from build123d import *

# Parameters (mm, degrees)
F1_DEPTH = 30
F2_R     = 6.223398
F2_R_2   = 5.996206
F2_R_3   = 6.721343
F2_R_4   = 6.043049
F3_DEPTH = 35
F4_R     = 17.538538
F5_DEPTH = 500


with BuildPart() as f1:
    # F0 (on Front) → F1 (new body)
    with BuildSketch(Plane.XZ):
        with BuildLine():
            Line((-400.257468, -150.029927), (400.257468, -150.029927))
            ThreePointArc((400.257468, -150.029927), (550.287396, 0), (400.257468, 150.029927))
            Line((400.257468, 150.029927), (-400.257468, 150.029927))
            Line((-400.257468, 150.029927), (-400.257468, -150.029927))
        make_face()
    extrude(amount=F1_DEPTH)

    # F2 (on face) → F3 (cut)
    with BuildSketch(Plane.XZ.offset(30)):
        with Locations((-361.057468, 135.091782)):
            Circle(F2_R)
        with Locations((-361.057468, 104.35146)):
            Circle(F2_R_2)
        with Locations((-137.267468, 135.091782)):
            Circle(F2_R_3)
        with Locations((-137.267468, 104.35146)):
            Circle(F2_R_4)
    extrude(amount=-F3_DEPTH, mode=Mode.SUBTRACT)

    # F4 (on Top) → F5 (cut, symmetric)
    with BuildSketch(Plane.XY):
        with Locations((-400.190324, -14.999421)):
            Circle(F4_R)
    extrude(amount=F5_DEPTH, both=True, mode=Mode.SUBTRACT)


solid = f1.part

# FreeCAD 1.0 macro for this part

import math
import FreeCAD as App
import Part
import Sketcher
from FreeCAD import Vector

doc = App.newDocument("Part")
body = doc.addObject("PartDesign::Body", "Body")

# Sketch on XZ plane
sketch1 = body.newObject("Sketcher::SketchObject", "Sketch")
sketch1.AttachmentSupport = (doc.getObject("XZ_Plane"), [""])
sketch1.MapMode = "FlatFace"
sketch1.addGeometry([
    Part.LineSegment(Vector(-400, -150, 0), Vector(400, -150, 0)),
    Part.ArcOfCircle(Part.Circle(Vector(400, 0, 0), Vector(0, 0, 1), 150), math.radians(-90), math.radians(90)),
    Part.LineSegment(Vector(400, 150, 0), Vector(-400, 150, 0)),
    Part.LineSegment(Vector(-400, 150, 0), Vector(-400, -150, 0)),
], False)
sketch1.addConstraint([
    Sketcher.Constraint("Tangent", 0, 2, 1, 1),
    Sketcher.Constraint("Tangent", 1, 2, 2, 1),
    Sketcher.Constraint("Coincident", 2, 2, 3, 1),
    Sketcher.Constraint("Coincident", 3, 2, 0, 1),
    Sketcher.Constraint("Horizontal", 0),
    Sketcher.Constraint("Horizontal", 2),
    Sketcher.Constraint("Vertical", 3),
    Sketcher.Constraint("Symmetric", 0, 2, 2, 2, -1, 1),
    Sketcher.Constraint("Radius", 1, 150.029927),
    Sketcher.Constraint("DistanceX", 0, 1, 0, 2, 800.514936),
])
pad1 = body.newObject("PartDesign::Pad", "Pad")
pad1.Profile = sketch1
pad1.Length = 30

# Sketch on XZ plane
sketch2 = body.newObject("Sketcher::SketchObject", "Sketch001")
sketch2.AttachmentSupport = (doc.getObject("XZ_Plane"), [""])
sketch2.MapMode = "FlatFace"
sketch2.AttachmentOffset = App.Placement(Vector(0, 0, 30), App.Rotation())
sketch2.addGeometry([
    Part.Circle(Vector(-361, 135, 0), Vector(0, 0, 1), 6),
    Part.Circle(Vector(-361, 104, 0), Vector(0, 0, 1), 6),
    Part.Circle(Vector(-137, 135, 0), Vector(0, 0, 1), 7),
    Part.Circle(Vector(-137, 104, 0), Vector(0, 0, 1), 6),
], False)
sketch2.addConstraint([
    Sketcher.Constraint("Horizontal", 0, 3, 2, 3),
    Sketcher.Constraint("Horizontal", 1, 3, 3, 3),
    Sketcher.Constraint("Vertical", 0, 3, 1, 3),
    Sketcher.Constraint("Vertical", 2, 3, 3, 3),
    Sketcher.Constraint("DistanceX", 0, 3, 2, 3, 223.79),
    Sketcher.Constraint("Diameter", 0, 12.446796),
    Sketcher.Constraint("Diameter", 1, 11.992412),
    Sketcher.Constraint("Diameter", 2, 13.442686),
    Sketcher.Constraint("Diameter", 3, 12.086098),
    Sketcher.Constraint("DistanceY", -1, 1, 0, 3, 135.091782),
    Sketcher.Constraint("DistanceY", -1, 1, 1, 3, 104.35146),
    Sketcher.Constraint("DistanceX", 2, 3, -1, 1, 137.267468),
])
pocket1 = body.newObject("PartDesign::Pocket", "Pocket")
pocket1.Profile = sketch2
pocket1.Length = 35

# Sketch on XY plane
sketch3 = body.newObject("Sketcher::SketchObject", "Sketch002")
sketch3.AttachmentSupport = (doc.getObject("XY_Plane"), [""])
sketch3.MapMode = "FlatFace"
sketch3.addGeometry(Part.Circle(Vector(-400, -15, 0), Vector(0, 0, 1), 18), False)
sketch3.addConstraint([
    Sketcher.Constraint("Diameter", 0, 35.077076),
    Sketcher.Constraint("DistanceY", 0, 3, -1, 1, 14.999421),
    Sketcher.Constraint("DistanceX", 0, 3, -1, 1, 400.190324),
])
pocket2 = body.newObject("PartDesign::Pocket", "Pocket001")
pocket2.Profile = sketch3
pocket2.Length = 1000
pocket2.Midplane = True

doc.recompute()
